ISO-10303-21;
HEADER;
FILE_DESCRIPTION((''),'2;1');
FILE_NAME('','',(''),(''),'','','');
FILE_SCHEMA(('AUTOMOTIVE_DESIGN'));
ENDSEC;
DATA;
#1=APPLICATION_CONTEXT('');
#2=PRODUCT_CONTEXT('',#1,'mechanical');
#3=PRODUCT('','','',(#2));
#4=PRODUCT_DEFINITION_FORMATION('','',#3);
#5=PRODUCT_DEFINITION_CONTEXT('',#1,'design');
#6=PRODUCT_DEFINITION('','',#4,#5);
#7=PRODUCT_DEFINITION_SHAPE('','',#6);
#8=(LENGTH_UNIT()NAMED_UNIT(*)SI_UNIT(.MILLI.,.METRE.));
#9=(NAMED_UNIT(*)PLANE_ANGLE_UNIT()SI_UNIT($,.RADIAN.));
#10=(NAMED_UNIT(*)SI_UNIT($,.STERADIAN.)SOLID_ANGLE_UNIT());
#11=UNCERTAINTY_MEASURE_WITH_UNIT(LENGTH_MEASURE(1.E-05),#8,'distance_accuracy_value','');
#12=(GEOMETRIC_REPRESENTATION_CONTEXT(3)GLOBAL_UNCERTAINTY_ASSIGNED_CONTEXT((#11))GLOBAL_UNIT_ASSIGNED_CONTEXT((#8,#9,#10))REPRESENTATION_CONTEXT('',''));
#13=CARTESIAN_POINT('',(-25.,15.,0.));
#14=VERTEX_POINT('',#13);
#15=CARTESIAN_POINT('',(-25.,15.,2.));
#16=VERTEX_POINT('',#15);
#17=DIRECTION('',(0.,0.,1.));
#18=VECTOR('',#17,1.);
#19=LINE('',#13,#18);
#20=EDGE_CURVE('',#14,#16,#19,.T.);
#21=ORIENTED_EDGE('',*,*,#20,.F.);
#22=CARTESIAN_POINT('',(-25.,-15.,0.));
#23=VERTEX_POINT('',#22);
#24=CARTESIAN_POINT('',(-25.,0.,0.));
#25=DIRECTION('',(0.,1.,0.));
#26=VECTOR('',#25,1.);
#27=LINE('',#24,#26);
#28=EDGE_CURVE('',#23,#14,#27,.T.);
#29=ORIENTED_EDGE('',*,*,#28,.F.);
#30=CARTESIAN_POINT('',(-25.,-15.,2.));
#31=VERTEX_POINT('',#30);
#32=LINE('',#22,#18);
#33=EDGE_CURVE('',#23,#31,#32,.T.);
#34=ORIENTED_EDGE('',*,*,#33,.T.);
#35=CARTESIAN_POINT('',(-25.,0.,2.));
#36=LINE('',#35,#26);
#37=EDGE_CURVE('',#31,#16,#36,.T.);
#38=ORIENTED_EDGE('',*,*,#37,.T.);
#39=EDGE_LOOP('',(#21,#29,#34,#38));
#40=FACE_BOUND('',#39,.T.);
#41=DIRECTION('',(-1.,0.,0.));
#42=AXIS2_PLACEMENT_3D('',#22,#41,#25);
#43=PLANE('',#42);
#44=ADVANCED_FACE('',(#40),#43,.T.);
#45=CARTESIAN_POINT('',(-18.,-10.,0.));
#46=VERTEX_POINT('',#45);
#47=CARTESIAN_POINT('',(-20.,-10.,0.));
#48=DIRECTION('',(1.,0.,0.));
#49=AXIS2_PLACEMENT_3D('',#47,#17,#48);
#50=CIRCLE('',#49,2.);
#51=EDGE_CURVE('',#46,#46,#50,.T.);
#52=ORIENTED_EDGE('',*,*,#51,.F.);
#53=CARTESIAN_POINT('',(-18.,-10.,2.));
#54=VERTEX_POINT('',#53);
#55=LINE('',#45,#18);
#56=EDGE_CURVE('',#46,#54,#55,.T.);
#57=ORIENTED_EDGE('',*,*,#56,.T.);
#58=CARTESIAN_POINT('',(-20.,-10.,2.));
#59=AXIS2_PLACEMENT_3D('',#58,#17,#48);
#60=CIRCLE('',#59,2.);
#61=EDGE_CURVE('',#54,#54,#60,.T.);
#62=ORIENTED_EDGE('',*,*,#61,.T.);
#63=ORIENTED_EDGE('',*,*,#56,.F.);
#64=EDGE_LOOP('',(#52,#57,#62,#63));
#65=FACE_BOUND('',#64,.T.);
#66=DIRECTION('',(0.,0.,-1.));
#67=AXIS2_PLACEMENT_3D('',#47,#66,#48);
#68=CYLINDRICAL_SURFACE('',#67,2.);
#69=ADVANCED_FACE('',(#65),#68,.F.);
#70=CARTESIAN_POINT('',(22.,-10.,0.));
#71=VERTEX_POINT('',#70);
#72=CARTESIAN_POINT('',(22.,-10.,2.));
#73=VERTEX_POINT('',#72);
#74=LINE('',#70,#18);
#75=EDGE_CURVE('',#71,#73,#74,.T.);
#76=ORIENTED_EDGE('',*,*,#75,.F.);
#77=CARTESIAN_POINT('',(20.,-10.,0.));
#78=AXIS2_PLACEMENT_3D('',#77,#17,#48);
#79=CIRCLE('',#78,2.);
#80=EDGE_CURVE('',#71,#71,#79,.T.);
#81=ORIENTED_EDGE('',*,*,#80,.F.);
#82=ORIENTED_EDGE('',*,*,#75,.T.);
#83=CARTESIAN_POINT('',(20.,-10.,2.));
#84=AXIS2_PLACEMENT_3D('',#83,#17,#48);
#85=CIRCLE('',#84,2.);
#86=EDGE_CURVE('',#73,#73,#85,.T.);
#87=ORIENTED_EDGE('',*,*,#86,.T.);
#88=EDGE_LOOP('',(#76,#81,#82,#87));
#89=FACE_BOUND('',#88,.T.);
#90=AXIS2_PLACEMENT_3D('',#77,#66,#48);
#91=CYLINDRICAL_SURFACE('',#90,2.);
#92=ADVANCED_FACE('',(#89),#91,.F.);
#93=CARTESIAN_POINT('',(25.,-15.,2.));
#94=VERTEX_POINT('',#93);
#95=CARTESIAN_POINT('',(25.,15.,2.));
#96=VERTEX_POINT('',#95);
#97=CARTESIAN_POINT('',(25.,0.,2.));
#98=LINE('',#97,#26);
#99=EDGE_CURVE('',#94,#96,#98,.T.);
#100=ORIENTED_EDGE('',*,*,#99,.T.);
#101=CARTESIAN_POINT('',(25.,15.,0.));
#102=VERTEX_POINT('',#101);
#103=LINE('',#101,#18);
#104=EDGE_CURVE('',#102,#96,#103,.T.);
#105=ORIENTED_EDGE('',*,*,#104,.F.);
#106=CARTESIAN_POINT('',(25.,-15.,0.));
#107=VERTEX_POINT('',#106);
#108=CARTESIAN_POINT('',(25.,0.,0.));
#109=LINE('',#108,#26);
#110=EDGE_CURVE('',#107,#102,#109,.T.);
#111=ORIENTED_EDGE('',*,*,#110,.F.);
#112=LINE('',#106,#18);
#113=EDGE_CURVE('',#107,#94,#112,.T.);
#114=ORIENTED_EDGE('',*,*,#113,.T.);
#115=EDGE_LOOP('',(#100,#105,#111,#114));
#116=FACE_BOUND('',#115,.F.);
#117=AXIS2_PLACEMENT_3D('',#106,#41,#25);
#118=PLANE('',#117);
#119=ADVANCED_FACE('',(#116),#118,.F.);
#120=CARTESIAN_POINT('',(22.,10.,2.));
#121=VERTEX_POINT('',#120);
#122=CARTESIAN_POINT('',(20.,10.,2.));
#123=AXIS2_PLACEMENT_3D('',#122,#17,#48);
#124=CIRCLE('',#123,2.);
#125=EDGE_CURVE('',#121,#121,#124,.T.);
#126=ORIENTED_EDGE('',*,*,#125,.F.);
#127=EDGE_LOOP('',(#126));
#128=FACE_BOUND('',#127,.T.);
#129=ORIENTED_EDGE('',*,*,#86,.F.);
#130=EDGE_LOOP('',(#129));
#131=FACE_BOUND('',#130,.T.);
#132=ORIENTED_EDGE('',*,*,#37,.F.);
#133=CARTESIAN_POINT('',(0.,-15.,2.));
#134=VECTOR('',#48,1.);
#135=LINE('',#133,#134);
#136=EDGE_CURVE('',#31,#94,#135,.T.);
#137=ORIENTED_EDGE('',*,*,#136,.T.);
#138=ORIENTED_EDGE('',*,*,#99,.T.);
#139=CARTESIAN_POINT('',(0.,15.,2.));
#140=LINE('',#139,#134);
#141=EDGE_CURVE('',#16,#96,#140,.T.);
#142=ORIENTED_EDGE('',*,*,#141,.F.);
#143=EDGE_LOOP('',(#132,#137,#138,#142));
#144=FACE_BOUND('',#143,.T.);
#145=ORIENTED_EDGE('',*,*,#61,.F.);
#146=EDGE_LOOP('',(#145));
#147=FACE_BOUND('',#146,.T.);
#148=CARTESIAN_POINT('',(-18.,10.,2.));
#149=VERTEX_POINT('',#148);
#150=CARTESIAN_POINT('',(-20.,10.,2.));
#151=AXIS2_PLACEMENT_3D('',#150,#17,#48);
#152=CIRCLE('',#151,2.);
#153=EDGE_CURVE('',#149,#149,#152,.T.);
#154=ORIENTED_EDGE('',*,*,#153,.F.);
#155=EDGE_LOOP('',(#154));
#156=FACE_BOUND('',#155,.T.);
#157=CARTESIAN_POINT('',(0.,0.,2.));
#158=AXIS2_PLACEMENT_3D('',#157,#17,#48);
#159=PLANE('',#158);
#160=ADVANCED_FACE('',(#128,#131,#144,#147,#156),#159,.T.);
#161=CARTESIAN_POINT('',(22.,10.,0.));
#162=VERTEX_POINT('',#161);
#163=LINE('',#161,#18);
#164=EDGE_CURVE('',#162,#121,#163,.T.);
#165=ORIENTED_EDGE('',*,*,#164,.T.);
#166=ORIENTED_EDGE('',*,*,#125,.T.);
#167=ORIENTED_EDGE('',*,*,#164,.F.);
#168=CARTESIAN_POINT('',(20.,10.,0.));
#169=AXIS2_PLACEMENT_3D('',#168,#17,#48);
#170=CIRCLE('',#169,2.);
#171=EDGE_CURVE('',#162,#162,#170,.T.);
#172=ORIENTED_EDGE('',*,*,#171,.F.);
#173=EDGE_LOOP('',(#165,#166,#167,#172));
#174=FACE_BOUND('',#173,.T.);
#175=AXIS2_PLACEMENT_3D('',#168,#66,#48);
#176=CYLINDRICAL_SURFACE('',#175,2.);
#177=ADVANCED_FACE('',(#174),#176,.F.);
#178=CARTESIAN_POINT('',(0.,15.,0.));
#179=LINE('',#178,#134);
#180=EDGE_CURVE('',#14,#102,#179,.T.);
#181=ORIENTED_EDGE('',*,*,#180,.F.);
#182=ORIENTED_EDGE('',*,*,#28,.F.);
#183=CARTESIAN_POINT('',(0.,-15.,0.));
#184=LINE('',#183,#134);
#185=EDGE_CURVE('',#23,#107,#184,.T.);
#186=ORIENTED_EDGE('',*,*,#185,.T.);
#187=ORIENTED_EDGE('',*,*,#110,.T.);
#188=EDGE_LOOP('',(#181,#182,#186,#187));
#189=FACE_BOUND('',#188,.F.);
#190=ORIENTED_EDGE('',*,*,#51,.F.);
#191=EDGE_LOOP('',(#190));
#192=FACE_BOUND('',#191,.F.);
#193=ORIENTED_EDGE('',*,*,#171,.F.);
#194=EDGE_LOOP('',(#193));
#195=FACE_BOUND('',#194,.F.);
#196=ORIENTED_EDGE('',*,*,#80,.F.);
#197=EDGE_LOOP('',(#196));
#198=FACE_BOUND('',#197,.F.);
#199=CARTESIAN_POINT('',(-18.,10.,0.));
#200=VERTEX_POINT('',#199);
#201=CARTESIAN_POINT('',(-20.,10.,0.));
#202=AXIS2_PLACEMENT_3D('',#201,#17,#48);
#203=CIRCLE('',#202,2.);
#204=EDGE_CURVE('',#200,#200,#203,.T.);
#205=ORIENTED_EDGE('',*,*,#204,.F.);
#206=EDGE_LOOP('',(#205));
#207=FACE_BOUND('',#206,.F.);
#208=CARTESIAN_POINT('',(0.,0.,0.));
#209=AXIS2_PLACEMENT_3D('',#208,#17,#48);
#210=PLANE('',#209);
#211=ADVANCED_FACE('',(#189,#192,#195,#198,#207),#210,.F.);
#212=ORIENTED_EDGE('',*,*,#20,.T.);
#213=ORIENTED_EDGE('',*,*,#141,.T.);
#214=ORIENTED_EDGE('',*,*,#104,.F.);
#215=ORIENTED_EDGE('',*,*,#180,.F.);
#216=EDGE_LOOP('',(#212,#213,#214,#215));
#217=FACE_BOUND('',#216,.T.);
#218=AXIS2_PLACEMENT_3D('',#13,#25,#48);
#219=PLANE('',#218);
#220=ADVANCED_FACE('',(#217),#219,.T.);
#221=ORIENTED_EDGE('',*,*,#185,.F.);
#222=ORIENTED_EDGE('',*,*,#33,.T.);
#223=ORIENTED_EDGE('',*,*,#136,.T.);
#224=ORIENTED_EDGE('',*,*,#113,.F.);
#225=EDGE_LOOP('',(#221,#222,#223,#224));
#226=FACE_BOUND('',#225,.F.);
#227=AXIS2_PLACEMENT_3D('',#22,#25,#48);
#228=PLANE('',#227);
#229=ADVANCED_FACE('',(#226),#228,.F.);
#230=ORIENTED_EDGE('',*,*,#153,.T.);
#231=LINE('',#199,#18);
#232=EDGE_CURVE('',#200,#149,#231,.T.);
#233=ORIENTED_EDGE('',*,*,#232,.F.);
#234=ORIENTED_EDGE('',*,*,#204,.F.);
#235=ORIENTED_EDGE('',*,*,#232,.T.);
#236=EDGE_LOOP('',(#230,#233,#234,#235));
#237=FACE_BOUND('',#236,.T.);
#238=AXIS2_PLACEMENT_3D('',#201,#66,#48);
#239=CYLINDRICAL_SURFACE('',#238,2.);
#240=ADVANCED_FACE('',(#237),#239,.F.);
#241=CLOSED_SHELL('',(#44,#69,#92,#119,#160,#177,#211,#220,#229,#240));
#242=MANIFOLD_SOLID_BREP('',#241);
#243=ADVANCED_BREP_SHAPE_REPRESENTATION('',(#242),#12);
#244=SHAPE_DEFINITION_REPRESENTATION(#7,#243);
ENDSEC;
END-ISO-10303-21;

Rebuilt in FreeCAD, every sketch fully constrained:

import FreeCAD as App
import Part
import Sketcher
from FreeCAD import Vector

doc = App.newDocument("Part")
body = doc.addObject("PartDesign::Body", "Body")

sketch1 = body.newObject("Sketcher::SketchObject", "Sketch")
sketch1.AttachmentSupport = (doc.getObject("XY_Plane"), [""])
sketch1.MapMode = "FlatFace"
sketch1.addGeometry([
    Part.LineSegment(Vector(-25, 15, 0), Vector(-25, -15, 0)),
    Part.LineSegment(Vector(-25, -15, 0), Vector(25, -15, 0)),
    Part.LineSegment(Vector(25, -15, 0), Vector(25, 15, 0)),
    Part.LineSegment(Vector(25, 15, 0), Vector(-25, 15, 0)),
    Part.Circle(Vector(-20, -10, 0), Vector(0, 0, 1), 2),
    Part.Circle(Vector(20, -10, 0), Vector(0, 0, 1), 2),
    Part.Circle(Vector(-20, 10, 0), Vector(0, 0, 1), 2),
    Part.Circle(Vector(20, 10, 0), Vector(0, 0, 1), 2),
], False)
sketch1.addConstraint([
    Sketcher.Constraint("Coincident", 0, 2, 1, 1),
    Sketcher.Constraint("Coincident", 1, 2, 2, 1),
    Sketcher.Constraint("Coincident", 2, 2, 3, 1),
    Sketcher.Constraint("Coincident", 3, 2, 0, 1),
    Sketcher.Constraint("Vertical", 0),
    Sketcher.Constraint("Horizontal", 1),
    Sketcher.Constraint("Vertical", 2),
    Sketcher.Constraint("Horizontal", 3),
    Sketcher.Constraint("Equal", 4, 5),
    Sketcher.Constraint("Equal", 5, 6),
    Sketcher.Constraint("Equal", 6, 7),
    Sketcher.Constraint("Symmetric", 5, 3, 6, 3, -1, 1),
    Sketcher.Constraint("Symmetric", 4, 3, 7, 3, -1, 1),
    Sketcher.Constraint("Symmetric", 0, 2, 2, 2, -1, 1),
    Sketcher.Constraint("Symmetric", 4, 3, 5, 3, -2),
    Sketcher.Constraint("Diameter", 4, 4.0),
    Sketcher.Constraint("DistanceX", 1, 1, 1, 2, 50.0),
    Sketcher.Constraint("DistanceY", 0, 2, 0, 1, 30.0),
    Sketcher.Constraint("DistanceX", 4, 3, -1, 1, 20.0),
    Sketcher.Constraint("DistanceY", 4, 3, -1, 1, 10.0),
])
pad1 = body.newObject("PartDesign::Pad", "Pad")
pad1.Profile = sketch1
pad1.Length = 2

doc.recompute()
